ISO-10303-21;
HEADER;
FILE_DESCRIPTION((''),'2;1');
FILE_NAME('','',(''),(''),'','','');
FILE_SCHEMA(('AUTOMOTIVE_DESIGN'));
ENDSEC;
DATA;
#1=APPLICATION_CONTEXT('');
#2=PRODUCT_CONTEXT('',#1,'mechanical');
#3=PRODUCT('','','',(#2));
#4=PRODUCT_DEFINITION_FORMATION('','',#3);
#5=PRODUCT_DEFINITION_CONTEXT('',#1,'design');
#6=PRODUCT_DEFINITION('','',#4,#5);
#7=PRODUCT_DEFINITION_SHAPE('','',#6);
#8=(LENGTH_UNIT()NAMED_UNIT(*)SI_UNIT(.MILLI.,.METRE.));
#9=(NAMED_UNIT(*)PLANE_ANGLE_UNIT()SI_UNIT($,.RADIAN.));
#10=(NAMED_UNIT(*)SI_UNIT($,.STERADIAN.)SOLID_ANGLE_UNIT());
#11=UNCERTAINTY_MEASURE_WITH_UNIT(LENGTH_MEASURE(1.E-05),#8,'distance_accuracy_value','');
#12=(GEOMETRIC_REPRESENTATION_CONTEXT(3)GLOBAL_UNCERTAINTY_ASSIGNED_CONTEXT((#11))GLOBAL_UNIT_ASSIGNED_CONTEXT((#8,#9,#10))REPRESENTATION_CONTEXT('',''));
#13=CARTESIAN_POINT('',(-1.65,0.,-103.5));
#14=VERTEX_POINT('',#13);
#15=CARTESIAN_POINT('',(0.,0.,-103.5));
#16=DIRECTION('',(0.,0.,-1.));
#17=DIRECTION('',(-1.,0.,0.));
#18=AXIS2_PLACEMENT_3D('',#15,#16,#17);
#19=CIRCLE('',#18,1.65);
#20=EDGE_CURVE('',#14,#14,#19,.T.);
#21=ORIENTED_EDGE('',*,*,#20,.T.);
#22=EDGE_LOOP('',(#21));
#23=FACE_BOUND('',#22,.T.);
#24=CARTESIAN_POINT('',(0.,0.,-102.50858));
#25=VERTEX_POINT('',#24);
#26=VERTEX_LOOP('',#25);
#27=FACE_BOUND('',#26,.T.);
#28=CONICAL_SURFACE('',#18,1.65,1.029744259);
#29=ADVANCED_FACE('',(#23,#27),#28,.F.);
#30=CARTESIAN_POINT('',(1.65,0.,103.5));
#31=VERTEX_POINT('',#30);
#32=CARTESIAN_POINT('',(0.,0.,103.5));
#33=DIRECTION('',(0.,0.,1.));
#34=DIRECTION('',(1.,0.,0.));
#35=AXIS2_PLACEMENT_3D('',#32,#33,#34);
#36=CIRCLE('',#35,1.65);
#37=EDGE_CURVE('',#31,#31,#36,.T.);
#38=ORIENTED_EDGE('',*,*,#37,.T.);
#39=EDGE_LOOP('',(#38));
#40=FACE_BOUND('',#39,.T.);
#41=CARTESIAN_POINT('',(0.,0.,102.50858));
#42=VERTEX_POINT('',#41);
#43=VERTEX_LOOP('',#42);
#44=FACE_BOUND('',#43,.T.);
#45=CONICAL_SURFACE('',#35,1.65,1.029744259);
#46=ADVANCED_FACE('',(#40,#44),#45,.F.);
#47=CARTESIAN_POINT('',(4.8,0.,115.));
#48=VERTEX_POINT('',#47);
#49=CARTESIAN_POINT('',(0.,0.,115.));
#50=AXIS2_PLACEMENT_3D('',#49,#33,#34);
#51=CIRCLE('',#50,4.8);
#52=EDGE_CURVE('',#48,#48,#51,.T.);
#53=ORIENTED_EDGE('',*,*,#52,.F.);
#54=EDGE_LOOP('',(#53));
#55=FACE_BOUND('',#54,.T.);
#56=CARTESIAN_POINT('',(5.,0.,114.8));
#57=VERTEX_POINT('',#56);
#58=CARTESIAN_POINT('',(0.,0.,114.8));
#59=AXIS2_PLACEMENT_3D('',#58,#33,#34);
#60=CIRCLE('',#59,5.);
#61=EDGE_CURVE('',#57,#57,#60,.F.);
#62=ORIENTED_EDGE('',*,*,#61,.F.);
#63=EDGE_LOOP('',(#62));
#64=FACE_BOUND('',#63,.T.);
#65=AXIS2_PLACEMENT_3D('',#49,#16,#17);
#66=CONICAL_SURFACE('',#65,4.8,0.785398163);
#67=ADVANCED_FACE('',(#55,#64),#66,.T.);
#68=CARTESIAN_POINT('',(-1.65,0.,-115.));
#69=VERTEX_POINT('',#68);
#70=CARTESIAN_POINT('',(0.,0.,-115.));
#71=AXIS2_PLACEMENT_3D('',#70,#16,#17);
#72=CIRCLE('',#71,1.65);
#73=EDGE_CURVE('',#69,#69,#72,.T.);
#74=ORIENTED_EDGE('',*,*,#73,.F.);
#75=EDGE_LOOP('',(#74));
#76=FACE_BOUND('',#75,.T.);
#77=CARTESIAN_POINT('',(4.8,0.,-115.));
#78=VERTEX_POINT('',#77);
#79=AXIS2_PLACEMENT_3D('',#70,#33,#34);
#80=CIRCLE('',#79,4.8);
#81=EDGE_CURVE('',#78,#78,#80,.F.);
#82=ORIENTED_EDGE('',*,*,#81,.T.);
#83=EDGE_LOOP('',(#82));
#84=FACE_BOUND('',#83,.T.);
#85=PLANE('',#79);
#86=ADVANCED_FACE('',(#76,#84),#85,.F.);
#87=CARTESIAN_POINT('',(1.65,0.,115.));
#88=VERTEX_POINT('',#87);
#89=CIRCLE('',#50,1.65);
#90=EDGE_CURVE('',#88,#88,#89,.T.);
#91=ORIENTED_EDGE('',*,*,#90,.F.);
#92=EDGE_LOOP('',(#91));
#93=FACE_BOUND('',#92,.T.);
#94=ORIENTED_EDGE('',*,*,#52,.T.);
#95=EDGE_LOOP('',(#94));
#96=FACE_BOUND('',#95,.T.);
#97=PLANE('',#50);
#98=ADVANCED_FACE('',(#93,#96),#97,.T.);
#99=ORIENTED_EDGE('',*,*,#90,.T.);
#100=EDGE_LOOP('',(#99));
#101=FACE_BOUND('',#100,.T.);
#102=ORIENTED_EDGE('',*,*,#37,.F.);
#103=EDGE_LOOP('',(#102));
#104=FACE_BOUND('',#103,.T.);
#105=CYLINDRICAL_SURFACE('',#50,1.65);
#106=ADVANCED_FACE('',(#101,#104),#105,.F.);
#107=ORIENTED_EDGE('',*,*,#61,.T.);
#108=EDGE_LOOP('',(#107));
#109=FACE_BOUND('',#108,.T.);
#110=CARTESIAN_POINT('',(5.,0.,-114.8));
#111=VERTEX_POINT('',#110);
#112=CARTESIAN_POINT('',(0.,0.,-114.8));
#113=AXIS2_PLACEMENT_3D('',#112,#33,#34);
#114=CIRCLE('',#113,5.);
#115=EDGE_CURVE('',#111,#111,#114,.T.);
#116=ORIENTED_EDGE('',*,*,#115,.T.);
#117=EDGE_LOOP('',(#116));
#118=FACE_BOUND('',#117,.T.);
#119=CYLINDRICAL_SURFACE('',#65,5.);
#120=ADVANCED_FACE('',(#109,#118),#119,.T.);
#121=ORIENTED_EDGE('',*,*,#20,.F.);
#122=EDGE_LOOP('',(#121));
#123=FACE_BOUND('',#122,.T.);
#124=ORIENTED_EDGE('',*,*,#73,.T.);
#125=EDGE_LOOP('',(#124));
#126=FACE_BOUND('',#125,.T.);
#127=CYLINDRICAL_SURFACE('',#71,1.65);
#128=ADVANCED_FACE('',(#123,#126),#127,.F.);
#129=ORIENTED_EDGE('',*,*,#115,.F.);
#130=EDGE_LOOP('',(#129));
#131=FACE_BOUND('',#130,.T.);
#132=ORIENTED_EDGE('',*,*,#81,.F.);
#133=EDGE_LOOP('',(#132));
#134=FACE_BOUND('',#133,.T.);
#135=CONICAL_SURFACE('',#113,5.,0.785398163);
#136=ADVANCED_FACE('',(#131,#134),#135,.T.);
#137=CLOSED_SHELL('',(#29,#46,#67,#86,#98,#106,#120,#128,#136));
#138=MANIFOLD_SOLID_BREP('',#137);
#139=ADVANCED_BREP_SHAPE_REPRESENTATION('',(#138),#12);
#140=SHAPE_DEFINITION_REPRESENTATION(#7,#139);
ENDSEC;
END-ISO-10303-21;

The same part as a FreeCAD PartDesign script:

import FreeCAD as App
import Part
import Sketcher

V = App.Vector
Q = App.Units.Quantity


def edges_at(feature, points):
    """Names of the edges that pass closest to the given points."""
    edges = feature.Shape.Edges
    near = lambda p: min(range(len(edges)), key=lambda i: edges[i].distToShape(Part.Vertex(*p))[0])
    return sorted({f"Edge{near(p) + 1}" for p in points})


def add_polygon(sketch, points):
    """Adds a closed chain of lines whose ends are joined by coincident constraints."""
    first, n = sketch.GeometryCount, len(points)
    for a, b in zip(points, points[1:] + points[:1]):
        sketch.addGeometry(Part.LineSegment(App.Vector(*a, 0), App.Vector(*b, 0)), False)
    for i in range(n):
        sketch.addConstraint(Sketcher.Constraint("Coincident", first + i, 2, first + (i + 1) % n, 1))

doc = App.newDocument("Part")
body = doc.addObject("PartDesign::Body", "Body")

# Sketch on XY plane
sketch1 = body.newObject("Sketcher::SketchObject", "Sketch")
sketch1.AttachmentSupport = (doc.getObject("XY_Plane"), [""])
sketch1.MapMode = "FlatFace"
sketch1.addGeometry(Part.Circle(V(0, 0, 0), V(0, 0, 1), 5), False)
sketch1.addConstraint([
    Sketcher.Constraint("Coincident", 0, 3, -1, 1),
    Sketcher.Constraint("Diameter", 0, Q("10 mm")),
])
pad1 = body.newObject("PartDesign::Pad", "Pad")
pad1.Profile = sketch1
pad1.Length = 230
pad1.Midplane = True

# Sketch on YZ plane
sketch2 = body.newObject("Sketcher::SketchObject", "Sketch001")
sketch2.AttachmentSupport = (doc.getObject("YZ_Plane"), [""])
sketch2.MapMode = "FlatFace"
add_polygon(sketch2, [(0, 102.50858), (0, 115), (-1.65, 115), (-1.65, 103.5)])  # lines 0-3
sketch2.addConstraint([
    Sketcher.Constraint("Vertical", 0),
    Sketcher.Constraint("Horizontal", 1),
    Sketcher.Constraint("Vertical", 2),
    Sketcher.Constraint("PointOnObject", 0, 2, -2),
    Sketcher.Constraint("Angle", 3, Q("-31 deg")),
    Sketcher.Constraint("DistanceY", 2, 2, 2, 1, Q("11.5 mm")),
    Sketcher.Constraint("DistanceY", -1, 1, 0, 2, Q("115 mm")),
    Sketcher.Constraint("DistanceX", 1, 2, 1, 1, Q("1.65 mm")),
])
groove = body.newObject("PartDesign::Groove", "Groove")
groove.Profile = sketch2
groove.ReferenceAxis = (sketch2, ["V_Axis"])
groove.Angle = 360
doc.recompute()

mirrored = body.newObject("PartDesign::Mirrored", "Mirrored")
mirrored.Originals = [groove]
mirrored.MirrorPlane = (doc.getObject("XY_Plane"), [""])
body.Tip = mirrored
doc.recompute()

chamfer = body.newObject("PartDesign::Chamfer", "Chamfer")
chamfer.Base = (mirrored, edges_at(mirrored, [(-5, 0, -115), (-5, 0, 115)]))
chamfer.Size = 0.2

doc.recompute()
